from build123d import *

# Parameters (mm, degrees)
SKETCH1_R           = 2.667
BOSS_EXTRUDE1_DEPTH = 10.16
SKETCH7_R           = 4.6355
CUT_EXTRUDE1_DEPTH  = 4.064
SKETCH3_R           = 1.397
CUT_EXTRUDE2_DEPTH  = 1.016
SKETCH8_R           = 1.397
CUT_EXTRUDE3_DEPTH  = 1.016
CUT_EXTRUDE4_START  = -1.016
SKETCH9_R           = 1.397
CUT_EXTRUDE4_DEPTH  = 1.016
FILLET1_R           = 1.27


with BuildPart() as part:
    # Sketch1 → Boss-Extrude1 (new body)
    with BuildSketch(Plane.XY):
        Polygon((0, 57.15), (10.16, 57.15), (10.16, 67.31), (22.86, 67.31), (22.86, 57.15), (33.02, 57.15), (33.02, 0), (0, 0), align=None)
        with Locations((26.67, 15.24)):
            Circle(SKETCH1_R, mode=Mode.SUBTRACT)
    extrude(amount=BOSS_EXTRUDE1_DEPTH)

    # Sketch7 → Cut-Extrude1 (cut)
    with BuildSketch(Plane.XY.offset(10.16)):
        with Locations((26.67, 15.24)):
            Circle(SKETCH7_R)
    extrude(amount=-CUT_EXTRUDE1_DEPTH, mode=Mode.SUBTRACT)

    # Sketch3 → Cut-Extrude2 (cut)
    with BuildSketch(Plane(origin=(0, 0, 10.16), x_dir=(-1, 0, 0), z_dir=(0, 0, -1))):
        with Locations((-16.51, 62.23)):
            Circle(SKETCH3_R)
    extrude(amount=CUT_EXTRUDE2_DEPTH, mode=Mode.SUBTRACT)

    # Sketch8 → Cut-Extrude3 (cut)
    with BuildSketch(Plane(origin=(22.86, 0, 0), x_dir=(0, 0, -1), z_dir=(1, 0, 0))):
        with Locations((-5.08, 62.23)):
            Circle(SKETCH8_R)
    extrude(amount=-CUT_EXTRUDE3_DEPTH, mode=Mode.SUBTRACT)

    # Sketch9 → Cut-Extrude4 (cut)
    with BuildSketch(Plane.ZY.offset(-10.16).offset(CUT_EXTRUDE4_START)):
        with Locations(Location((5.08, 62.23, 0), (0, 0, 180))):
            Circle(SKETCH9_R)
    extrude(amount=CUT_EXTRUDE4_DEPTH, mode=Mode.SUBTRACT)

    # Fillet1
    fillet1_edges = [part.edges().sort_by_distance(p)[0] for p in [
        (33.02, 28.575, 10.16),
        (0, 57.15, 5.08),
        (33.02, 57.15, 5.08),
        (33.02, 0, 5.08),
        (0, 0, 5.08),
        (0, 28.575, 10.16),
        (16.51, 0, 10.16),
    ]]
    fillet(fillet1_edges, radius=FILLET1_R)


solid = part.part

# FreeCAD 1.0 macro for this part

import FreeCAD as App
import Part
import Sketcher

V = App.Vector
Q = App.Units.Quantity


def edges_at(feature, points):
    """Names of the edges that pass closest to the given points."""
    edges = feature.Shape.Edges
    near = lambda p: min(range(len(edges)), key=lambda i: edges[i].distToShape(Part.Vertex(*p))[0])
    return sorted({f"Edge{near(p) + 1}" for p in points})

doc = App.newDocument("Part")
body = doc.addObject("PartDesign::Body", "Body")

# Sketch on XY plane
sketch1 = doc.addObject("Sketcher::SketchObject", "Sketch")
body.addObject(sketch1)
sketch1.AttachmentSupport = (doc.XY_Plane, [""])
sketch1.MapMode = "FlatFace"
sketch1.addGeometry(Part.LineSegment(V(10.16, 57.15, 0), V(0, 57.15, 0)), False)
sketch1.addGeometry(Part.LineSegment(V(0, 57.15, 0), V(0, 0, 0)), False)
sketch1.addGeometry(Part.LineSegment(V(0, 0, 0), V(33.02, 0, 0)), False)
sketch1.addGeometry(Part.LineSegment(V(33.02, 0, 0), V(33.02, 57.15, 0)), False)
sketch1.addGeometry(Part.LineSegment(V(33.02, 57.15, 0), V(22.86, 57.15, 0)), False)
sketch1.addGeometry(Part.LineSegment(V(22.86, 57.15, 0), V(22.86, 67.31, 0)), False)
sketch1.addGeometry(Part.LineSegment(V(22.86, 67.31, 0), V(10.16, 67.31, 0)), False)
sketch1.addGeometry(Part.LineSegment(V(10.16, 67.31, 0), V(10.16, 57.15, 0)), False)
sketch1.addGeometry(Part.Circle(V(26.67, 15.24, 0), V(0, 0, 1), 2.667), False)
sketch1.addConstraint(Sketcher.Constraint("Coincident", 0, 2, 1, 1))
sketch1.addConstraint(Sketcher.Constraint("Coincident", 1, 2, 2, 1))
sketch1.addConstraint(Sketcher.Constraint("Coincident", 2, 2, 3, 1))
sketch1.addConstraint(Sketcher.Constraint("Coincident", 3, 2, 4, 1))
sketch1.addConstraint(Sketcher.Constraint("Coincident", 4, 2, 5, 1))
sketch1.addConstraint(Sketcher.Constraint("Coincident", 5, 2, 6, 1))
sketch1.addConstraint(Sketcher.Constraint("Coincident", 6, 2, 7, 1))
sketch1.addConstraint(Sketcher.Constraint("Coincident", 7, 2, 0, 1))
sketch1.addConstraint(Sketcher.Constraint("Horizontal", 0))
sketch1.addConstraint(Sketcher.Constraint("Vertical", 1))
sketch1.addConstraint(Sketcher.Constraint("Horizontal", 2))
sketch1.addConstraint(Sketcher.Constraint("Vertical", 3))
sketch1.addConstraint(Sketcher.Constraint("Horizontal", 4))
sketch1.addConstraint(Sketcher.Constraint("Vertical", 5))
sketch1.addConstraint(Sketcher.Constraint("Horizontal", 6))
sketch1.addConstraint(Sketcher.Constraint("Vertical", 7))
sketch1.addConstraint(Sketcher.Constraint("Coincident", 1, 2, -1, 1))
sketch1.addConstraint(Sketcher.Constraint("Horizontal", 0, 2, 3, 2))
sketch1.addConstraint(Sketcher.Constraint("Equal", 0, 4))
sketch1.addConstraint(Sketcher.Constraint("Equal", 4, 5))
sketch1.addConstraint(Sketcher.Constraint("Diameter", 8, Q("0.21 in")))
sketch1.addConstraint(Sketcher.Constraint("DistanceX", 0, 2, 0, 1, Q("0.4 in")))
sketch1.addConstraint(Sketcher.Constraint("DistanceX", 2, 1, 2, 2, Q("1.3 in")))
sketch1.addConstraint(Sketcher.Constraint("DistanceY", 1, 2, 1, 1, Q("2.25 in")))
sketch1.addConstraint(Sketcher.Constraint("DistanceY", -1, 1, 8, 3, Q("0.6 in")))
sketch1.addConstraint(Sketcher.Constraint("DistanceX", -1, 1, 8, 3, Q("1.05 in")))
pad1 = doc.addObject("PartDesign::Pad", "Pad")
body.addObject(pad1)
pad1.Profile = sketch1
pad1.Length = Q("0.4 in")

# Sketch on XY plane
sketch2 = doc.addObject("Sketcher::SketchObject", "Sketch001")
body.addObject(sketch2)
sketch2.AttachmentSupport = (doc.XY_Plane, [""])
sketch2.MapMode = "FlatFace"
sketch2.AttachmentOffset = App.Placement(V(0, 0, 0.4 * 25.4), App.Rotation())
sketch2.addGeometry(Part.Circle(V(26.67, 15.24, 0), V(0, 0, 1), 4.6355), False)
sketch2.addConstraint(Sketcher.Constraint("Diameter", 0, Q("0.365 in")))
sketch2.addConstraint(Sketcher.Constraint("DistanceY", -1, 1, 0, 3, Q("0.6 in")))
sketch2.addConstraint(Sketcher.Constraint("DistanceX", -1, 1, 0, 3, Q("1.05 in")))
pocket1 = doc.addObject("PartDesign::Pocket", "Pocket")
body.addObject(pocket1)
pocket1.Profile = sketch2
pocket1.Length = Q("0.16 in")

# Sketch on XY plane
sketch3 = doc.addObject("Sketcher::SketchObject", "Sketch002")
body.addObject(sketch3)
sketch3.AttachmentSupport = (doc.XY_Plane, [""])
sketch3.MapMode = "FlatFace"
sketch3.AttachmentOffset = App.Placement(V(0, 0, 0.4 * 25.4), App.Rotation())
sketch3.addGeometry(Part.Circle(V(16.51, 62.23, 0), V(0, 0, 1), 1.397), False)
sketch3.addConstraint(Sketcher.Constraint("Diameter", 0, Q("0.11 in")))
sketch3.addConstraint(Sketcher.Constraint("DistanceX", -1, 1, 0, 3, Q("0.65 in")))
sketch3.addConstraint(Sketcher.Constraint("DistanceY", -1, 1, 0, 3, Q("2.45 in")))
pocket2 = doc.addObject("PartDesign::Pocket", "Pocket001")
body.addObject(pocket2)
pocket2.Profile = sketch3
pocket2.Length = Q("0.04 in")

# Sketch on YZ plane
sketch4 = doc.addObject("Sketcher::SketchObject", "Sketch003")
body.addObject(sketch4)
sketch4.AttachmentSupport = (doc.YZ_Plane, [""])
sketch4.MapMode = "FlatFace"
sketch4.AttachmentOffset = App.Placement(V(0, 0, 0.9 * 25.4), App.Rotation())
sketch4.addGeometry(Part.Circle(V(62.23, 5.08, 0), V(0, 0, 1), 1.397), False)
sketch4.addConstraint(Sketcher.Constraint("Diameter", 0, Q("0.11 in")))
sketch4.addConstraint(Sketcher.Constraint("DistanceY", -1, 1, 0, 3, Q("0.2 in")))
sketch4.addConstraint(Sketcher.Constraint("DistanceX", -1, 1, 0, 3, Q("2.45 in")))
pocket3 = doc.addObject("PartDesign::Pocket", "Pocket002")
body.addObject(pocket3)
pocket3.Profile = sketch4
pocket3.Length = Q("0.04 in")

# Sketch on YZ plane
sketch5 = doc.addObject("Sketcher::SketchObject", "Sketch004")
body.addObject(sketch5)
sketch5.AttachmentSupport = (doc.YZ_Plane, [""])
sketch5.MapMode = "FlatFace"
sketch5.AttachmentOffset = App.Placement(V(0, 0, 0.44 * 25.4), App.Rotation())
sketch5.addGeometry(Part.Circle(V(62.23, 5.08, 0), V(0, 0, 1), 1.397), False)
sketch5.addConstraint(Sketcher.Constraint("Diameter", 0, Q("0.11 in")))
sketch5.addConstraint(Sketcher.Constraint("DistanceY", -1, 1, 0, 3, Q("0.2 in")))
sketch5.addConstraint(Sketcher.Constraint("DistanceX", -1, 1, 0, 3, Q("2.45 in")))
pocket4 = doc.addObject("PartDesign::Pocket", "Pocket003")
body.addObject(pocket4)
pocket4.Profile = sketch5
pocket4.Length = Q("0.04 in")
doc.recompute()

fillet = doc.addObject("PartDesign::Fillet", "Fillet")
body.addObject(fillet)
fillet.Base = (pocket4, edges_at(pocket4, [
    (33.02, 28.575, 10.16),
    (0, 57.15, 5.08),
    (33.02, 57.15, 5.08),
    (33.02, 0, 5.08),
    (0, 0, 5.08),
    (0, 28.575, 10.16),
    (16.51, 0, 10.16),
]))
fillet.Radius = Q("0.05 in")

doc.recompute()
